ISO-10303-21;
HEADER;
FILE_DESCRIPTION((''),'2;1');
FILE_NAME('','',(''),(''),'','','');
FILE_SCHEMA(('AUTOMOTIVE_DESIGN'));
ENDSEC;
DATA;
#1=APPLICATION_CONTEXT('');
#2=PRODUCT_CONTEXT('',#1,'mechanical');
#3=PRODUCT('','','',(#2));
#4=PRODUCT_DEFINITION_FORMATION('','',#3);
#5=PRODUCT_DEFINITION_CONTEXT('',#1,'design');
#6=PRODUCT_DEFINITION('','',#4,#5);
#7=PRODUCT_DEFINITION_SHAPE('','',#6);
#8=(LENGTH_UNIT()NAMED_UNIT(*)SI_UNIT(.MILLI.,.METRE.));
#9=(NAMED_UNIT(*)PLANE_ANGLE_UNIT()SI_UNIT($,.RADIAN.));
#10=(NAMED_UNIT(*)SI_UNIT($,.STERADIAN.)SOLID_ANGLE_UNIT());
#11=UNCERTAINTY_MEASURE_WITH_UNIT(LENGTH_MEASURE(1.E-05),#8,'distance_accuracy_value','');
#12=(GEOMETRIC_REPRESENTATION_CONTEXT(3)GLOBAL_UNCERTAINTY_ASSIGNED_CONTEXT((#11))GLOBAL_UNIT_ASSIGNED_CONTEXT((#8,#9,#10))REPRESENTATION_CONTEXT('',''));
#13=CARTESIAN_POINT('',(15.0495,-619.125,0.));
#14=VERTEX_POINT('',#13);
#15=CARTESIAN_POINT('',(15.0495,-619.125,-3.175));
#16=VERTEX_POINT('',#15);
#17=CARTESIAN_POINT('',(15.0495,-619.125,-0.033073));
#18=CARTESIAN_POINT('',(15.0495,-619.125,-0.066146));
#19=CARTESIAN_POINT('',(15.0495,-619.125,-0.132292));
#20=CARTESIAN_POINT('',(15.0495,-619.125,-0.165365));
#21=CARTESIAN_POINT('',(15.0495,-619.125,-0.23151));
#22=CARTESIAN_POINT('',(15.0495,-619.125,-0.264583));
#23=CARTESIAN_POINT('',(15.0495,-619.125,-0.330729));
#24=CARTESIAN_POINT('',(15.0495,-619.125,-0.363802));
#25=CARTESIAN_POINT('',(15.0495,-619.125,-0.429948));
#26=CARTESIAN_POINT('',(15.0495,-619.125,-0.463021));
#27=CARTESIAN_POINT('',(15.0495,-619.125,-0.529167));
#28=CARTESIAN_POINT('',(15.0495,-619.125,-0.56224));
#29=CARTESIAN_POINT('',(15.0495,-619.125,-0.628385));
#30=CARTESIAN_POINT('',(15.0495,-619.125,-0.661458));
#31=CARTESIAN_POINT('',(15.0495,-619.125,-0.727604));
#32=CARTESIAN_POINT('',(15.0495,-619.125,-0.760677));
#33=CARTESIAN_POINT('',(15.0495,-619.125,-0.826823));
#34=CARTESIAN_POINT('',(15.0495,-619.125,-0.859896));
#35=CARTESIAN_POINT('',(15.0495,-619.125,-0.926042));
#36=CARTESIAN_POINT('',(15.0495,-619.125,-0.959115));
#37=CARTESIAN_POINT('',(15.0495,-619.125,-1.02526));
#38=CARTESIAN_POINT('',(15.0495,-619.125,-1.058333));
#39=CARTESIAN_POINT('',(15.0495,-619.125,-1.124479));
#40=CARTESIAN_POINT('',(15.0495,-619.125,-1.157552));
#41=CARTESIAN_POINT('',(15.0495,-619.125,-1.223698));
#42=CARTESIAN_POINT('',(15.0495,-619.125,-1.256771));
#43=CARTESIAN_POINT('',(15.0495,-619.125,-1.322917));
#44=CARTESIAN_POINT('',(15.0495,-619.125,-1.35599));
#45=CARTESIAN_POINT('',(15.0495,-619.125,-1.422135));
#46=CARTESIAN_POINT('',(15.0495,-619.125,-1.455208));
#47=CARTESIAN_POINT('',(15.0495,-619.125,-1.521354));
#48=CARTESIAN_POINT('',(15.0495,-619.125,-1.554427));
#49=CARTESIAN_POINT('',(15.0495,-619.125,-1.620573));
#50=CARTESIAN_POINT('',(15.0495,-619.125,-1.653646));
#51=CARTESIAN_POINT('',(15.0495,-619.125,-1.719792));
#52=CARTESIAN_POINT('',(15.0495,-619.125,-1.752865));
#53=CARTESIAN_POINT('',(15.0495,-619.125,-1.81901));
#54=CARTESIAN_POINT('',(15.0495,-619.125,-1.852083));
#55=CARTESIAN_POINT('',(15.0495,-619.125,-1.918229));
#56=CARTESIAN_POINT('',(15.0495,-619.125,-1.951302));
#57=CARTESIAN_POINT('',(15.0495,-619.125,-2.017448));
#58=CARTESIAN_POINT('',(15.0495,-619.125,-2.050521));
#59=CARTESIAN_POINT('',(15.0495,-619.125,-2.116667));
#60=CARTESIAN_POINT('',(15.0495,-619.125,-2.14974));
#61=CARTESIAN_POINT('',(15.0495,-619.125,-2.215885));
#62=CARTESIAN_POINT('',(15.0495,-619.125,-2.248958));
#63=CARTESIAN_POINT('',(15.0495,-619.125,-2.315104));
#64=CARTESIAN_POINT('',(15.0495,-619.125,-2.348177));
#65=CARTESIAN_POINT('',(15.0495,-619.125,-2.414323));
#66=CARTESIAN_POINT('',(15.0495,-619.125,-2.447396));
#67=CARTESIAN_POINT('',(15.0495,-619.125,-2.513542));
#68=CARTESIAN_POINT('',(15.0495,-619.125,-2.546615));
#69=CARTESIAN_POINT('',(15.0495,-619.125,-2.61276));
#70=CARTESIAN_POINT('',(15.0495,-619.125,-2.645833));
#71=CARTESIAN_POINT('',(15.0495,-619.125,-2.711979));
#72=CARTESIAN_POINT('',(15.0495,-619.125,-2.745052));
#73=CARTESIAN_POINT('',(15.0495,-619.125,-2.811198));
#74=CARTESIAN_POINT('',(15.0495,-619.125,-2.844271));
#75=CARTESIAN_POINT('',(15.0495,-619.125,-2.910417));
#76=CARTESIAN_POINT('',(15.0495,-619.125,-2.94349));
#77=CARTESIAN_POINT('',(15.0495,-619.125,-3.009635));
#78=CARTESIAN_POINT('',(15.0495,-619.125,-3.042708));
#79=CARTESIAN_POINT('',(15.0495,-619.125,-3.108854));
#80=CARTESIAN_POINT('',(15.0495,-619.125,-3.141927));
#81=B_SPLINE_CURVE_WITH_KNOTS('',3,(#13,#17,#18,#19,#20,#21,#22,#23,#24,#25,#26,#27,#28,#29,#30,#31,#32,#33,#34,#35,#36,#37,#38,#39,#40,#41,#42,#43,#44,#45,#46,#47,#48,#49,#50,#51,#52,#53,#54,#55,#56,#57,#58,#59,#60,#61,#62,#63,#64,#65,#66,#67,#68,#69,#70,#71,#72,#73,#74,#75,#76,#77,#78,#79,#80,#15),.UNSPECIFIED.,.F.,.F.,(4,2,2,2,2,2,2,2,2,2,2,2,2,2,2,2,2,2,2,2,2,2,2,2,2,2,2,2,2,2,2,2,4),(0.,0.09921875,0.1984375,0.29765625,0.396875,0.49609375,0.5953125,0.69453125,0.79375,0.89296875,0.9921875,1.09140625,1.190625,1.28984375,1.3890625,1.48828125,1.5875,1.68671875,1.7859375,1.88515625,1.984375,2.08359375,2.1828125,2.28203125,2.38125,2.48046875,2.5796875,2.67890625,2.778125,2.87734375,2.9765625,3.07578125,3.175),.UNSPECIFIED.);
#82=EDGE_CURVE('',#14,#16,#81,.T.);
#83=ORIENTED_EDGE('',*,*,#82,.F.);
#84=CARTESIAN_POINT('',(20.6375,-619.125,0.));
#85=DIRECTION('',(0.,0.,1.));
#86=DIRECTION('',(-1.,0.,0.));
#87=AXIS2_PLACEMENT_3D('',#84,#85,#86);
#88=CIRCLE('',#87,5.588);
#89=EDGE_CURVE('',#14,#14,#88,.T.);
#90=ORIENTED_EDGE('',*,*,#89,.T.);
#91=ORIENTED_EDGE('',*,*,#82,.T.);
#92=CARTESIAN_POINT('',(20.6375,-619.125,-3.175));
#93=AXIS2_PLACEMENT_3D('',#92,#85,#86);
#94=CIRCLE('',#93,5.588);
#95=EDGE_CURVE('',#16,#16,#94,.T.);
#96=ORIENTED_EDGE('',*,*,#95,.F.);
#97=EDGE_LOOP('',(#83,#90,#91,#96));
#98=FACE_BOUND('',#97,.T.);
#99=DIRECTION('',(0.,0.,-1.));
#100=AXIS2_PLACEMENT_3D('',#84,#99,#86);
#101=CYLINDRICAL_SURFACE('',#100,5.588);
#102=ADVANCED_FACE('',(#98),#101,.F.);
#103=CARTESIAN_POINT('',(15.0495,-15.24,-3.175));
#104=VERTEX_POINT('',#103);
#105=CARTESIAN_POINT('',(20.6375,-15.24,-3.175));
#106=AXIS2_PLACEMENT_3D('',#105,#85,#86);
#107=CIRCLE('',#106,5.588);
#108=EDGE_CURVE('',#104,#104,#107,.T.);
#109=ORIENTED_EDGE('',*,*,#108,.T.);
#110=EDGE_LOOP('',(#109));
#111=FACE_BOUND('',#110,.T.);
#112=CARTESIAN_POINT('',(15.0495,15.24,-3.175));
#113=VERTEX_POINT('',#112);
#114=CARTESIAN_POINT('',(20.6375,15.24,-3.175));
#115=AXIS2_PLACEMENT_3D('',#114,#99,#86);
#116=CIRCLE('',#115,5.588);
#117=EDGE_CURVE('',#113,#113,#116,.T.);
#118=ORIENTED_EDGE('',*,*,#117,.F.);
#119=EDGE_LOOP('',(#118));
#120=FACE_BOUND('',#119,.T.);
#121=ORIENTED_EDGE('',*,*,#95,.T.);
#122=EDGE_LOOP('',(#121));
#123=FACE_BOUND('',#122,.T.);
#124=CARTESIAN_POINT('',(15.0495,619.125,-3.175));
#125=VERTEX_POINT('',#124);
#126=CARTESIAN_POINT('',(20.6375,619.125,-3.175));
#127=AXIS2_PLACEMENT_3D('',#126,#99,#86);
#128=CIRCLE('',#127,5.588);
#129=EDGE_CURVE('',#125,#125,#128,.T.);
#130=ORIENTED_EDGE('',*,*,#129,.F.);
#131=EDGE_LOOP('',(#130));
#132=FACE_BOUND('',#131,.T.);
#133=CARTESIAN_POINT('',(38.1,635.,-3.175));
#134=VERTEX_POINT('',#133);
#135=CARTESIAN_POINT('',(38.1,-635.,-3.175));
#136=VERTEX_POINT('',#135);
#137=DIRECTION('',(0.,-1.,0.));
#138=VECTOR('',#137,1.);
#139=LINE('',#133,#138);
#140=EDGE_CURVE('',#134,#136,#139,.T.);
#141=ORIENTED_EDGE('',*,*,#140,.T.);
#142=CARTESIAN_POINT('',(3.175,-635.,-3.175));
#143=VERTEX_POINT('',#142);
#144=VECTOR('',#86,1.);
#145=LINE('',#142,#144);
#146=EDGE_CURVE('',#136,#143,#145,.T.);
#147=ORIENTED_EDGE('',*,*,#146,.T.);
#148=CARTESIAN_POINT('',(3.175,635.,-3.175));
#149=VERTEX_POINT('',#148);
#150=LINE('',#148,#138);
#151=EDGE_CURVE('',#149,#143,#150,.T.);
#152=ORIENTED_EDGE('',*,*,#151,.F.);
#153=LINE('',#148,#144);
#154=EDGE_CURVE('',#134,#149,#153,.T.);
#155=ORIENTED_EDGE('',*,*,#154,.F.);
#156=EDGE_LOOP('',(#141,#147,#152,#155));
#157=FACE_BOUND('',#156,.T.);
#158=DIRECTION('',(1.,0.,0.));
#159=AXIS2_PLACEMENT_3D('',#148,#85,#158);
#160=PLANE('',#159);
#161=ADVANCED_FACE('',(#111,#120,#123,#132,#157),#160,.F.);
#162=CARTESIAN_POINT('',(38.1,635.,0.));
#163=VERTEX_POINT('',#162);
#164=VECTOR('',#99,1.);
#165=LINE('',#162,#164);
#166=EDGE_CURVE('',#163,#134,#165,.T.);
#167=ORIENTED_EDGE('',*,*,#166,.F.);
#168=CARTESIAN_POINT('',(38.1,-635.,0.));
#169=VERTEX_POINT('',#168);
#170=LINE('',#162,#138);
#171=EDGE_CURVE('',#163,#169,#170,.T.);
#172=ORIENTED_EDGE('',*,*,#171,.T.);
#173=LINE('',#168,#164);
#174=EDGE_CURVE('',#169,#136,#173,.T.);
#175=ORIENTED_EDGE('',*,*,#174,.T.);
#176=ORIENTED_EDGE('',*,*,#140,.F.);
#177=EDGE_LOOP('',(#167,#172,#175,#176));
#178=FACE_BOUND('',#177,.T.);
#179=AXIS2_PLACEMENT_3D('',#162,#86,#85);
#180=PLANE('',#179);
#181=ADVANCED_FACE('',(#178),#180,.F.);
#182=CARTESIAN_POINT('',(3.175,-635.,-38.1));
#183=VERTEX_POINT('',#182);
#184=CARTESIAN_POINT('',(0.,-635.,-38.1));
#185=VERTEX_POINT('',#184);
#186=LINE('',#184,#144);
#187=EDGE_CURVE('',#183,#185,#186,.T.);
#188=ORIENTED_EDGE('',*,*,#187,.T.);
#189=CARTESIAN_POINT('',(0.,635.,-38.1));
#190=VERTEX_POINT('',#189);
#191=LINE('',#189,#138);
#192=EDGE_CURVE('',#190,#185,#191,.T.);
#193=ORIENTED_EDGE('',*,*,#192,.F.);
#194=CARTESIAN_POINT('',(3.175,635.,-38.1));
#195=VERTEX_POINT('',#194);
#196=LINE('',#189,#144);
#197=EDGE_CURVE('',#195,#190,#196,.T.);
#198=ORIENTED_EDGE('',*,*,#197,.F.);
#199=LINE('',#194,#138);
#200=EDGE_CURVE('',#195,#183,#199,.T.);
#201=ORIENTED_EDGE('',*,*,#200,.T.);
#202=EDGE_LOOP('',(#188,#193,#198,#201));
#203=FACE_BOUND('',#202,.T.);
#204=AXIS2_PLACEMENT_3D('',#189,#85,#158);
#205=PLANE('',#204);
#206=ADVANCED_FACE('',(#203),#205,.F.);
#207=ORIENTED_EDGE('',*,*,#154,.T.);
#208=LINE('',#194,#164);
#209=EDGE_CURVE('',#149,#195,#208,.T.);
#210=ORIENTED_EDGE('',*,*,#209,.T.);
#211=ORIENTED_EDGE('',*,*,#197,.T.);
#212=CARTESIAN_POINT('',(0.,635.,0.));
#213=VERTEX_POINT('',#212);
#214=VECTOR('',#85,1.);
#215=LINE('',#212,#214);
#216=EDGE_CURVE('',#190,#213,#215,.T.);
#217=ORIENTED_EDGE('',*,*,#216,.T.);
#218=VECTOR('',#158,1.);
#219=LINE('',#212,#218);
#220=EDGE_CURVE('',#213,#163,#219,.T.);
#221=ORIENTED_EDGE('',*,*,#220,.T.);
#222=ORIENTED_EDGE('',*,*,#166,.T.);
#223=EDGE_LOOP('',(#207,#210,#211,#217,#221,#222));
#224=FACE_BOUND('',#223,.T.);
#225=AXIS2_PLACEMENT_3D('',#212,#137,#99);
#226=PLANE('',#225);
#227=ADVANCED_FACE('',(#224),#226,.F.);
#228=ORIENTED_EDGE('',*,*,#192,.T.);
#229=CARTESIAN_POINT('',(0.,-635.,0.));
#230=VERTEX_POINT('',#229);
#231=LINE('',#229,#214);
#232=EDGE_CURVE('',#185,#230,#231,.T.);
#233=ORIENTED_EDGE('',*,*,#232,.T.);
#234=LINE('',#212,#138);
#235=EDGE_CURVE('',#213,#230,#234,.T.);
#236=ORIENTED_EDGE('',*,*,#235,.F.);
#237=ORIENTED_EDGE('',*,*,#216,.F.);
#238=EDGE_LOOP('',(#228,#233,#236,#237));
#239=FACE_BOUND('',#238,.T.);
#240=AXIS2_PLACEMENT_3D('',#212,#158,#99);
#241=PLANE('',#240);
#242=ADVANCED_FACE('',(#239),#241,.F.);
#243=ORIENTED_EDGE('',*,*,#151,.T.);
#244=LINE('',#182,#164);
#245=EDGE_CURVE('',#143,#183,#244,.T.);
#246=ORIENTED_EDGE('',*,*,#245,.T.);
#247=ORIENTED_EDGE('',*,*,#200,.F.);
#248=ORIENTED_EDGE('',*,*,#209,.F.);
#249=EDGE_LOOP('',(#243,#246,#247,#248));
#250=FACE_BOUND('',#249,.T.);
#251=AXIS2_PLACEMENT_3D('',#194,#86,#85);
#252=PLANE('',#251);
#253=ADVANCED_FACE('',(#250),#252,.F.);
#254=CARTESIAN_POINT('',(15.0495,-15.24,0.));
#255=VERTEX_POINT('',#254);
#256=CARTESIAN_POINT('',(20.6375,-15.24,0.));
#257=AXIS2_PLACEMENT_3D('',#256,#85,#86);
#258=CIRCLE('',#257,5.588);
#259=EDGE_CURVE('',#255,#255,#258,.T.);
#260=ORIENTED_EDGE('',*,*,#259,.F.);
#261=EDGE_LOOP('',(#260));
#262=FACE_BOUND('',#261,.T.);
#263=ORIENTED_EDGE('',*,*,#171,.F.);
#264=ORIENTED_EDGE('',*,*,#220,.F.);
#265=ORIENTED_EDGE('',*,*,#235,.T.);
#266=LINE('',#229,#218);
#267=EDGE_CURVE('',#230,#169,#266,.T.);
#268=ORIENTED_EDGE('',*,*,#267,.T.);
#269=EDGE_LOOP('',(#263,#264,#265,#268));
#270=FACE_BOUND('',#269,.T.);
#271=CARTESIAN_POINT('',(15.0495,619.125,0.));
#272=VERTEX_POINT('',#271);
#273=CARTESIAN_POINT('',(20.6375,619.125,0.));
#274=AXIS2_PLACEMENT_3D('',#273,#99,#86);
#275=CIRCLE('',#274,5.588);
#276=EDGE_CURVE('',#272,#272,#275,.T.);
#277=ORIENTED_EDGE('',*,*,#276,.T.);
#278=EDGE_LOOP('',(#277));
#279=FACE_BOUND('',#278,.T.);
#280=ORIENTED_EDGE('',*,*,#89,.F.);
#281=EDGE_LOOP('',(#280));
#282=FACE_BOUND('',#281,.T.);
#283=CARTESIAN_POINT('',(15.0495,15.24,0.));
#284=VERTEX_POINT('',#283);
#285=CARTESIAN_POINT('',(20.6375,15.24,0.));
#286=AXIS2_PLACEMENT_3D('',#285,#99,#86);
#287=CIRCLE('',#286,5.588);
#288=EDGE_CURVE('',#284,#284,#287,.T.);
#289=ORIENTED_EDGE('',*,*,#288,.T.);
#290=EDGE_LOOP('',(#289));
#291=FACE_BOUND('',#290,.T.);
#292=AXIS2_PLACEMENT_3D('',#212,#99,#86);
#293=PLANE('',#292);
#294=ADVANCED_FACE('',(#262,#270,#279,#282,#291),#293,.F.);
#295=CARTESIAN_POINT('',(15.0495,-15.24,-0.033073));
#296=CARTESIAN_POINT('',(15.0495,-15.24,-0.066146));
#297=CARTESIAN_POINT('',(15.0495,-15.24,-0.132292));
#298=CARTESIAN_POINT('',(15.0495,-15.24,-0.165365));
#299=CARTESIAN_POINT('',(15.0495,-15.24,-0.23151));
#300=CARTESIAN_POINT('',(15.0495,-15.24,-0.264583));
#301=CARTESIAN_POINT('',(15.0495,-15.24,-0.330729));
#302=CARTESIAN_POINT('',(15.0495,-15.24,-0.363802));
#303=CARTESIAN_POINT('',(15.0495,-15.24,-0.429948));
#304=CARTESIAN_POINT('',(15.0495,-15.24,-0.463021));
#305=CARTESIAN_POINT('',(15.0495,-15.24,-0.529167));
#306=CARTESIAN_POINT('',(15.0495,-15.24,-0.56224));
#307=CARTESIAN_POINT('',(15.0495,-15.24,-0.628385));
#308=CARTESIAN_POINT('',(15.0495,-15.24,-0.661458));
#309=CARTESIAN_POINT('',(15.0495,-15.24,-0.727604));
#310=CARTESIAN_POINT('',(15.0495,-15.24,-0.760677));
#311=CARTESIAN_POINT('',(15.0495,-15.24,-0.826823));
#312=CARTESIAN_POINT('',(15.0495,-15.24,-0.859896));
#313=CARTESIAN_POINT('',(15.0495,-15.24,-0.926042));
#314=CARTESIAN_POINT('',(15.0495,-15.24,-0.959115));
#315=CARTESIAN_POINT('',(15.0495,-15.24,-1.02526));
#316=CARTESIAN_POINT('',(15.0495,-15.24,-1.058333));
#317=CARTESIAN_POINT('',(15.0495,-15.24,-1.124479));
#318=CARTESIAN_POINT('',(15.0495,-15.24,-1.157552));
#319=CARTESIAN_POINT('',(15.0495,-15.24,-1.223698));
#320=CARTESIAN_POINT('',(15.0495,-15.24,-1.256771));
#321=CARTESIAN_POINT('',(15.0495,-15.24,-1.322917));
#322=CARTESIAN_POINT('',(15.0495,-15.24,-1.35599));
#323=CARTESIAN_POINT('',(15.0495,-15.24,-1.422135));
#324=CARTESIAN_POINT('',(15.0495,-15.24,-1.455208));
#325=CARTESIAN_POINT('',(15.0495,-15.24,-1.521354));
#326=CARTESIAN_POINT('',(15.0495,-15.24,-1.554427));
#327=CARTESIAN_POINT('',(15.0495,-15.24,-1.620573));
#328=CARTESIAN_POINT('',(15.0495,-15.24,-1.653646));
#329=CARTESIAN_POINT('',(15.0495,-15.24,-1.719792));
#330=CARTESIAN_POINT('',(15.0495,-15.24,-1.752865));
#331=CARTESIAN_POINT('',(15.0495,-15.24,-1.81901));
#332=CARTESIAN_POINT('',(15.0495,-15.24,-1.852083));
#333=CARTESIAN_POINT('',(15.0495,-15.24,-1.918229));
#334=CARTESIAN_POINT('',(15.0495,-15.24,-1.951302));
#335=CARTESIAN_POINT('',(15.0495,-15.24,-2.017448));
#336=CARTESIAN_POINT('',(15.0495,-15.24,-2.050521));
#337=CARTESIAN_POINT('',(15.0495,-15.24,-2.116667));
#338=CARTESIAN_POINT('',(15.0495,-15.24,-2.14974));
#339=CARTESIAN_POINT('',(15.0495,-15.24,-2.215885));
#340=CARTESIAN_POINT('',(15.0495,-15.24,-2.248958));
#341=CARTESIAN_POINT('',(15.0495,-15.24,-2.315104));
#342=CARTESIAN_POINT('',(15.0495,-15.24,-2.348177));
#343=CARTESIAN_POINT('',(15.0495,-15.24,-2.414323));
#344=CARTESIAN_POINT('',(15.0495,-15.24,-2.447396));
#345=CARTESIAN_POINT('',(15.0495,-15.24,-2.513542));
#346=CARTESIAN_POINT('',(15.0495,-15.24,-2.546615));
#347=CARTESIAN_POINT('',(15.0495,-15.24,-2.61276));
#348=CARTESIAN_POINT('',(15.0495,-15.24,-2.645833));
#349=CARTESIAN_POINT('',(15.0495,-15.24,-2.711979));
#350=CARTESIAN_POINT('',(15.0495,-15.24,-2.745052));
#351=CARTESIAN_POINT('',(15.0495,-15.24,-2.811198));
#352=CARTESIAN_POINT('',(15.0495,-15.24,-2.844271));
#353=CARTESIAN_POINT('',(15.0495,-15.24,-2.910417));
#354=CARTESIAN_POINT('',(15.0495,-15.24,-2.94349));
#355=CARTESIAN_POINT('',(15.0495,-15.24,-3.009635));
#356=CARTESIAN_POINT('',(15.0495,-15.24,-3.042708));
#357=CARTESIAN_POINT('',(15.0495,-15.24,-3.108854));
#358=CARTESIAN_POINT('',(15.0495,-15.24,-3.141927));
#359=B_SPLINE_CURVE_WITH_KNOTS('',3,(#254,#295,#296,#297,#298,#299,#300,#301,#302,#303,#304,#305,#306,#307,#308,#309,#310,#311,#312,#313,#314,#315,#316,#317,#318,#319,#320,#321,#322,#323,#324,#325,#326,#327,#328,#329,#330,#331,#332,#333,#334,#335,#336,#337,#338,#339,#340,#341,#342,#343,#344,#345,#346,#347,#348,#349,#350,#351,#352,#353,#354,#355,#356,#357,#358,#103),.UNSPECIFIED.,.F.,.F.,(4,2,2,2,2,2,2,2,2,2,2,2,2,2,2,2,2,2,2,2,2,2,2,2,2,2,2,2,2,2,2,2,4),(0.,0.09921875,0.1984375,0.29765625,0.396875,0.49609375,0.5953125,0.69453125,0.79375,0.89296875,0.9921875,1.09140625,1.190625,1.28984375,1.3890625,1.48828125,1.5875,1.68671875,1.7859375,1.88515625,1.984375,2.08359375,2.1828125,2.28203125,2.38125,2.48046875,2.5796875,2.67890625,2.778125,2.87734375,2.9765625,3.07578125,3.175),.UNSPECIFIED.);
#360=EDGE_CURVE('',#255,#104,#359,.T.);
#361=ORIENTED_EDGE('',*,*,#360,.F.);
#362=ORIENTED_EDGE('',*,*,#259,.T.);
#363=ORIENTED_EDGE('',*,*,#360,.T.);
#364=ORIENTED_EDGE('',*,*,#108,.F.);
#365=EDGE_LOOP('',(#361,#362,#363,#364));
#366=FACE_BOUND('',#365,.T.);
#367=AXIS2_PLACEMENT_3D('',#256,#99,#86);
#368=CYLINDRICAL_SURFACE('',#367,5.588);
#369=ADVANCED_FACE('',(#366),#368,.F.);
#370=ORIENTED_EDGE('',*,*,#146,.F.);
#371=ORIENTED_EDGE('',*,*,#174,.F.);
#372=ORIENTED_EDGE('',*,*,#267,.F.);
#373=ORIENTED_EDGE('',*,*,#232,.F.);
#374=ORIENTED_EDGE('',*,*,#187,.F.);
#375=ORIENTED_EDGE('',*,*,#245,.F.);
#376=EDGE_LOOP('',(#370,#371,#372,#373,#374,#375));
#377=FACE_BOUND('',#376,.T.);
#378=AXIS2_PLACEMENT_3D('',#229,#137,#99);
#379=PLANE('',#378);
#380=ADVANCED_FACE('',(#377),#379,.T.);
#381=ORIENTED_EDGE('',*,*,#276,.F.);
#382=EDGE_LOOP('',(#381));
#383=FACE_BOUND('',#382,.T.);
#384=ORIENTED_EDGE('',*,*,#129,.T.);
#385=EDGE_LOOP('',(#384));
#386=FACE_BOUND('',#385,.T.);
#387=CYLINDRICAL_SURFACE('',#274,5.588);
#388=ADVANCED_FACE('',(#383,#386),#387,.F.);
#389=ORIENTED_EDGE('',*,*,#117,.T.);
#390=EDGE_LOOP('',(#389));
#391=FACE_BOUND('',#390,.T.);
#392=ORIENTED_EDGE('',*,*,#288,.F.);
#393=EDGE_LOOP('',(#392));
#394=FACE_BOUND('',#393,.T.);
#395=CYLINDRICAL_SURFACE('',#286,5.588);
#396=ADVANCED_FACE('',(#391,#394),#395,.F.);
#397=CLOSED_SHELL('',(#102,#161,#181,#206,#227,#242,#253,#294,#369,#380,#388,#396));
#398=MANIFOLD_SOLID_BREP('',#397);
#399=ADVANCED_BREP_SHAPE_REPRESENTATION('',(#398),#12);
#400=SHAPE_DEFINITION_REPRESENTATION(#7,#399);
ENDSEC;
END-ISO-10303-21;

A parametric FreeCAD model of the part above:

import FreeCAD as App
import Part
import Sketcher
from FreeCAD import Vector
Q = App.Units.Quantity


def add_polygon(sketch, points):
    """Adds a closed chain of lines whose ends are joined by coincident constraints."""
    first, n = sketch.GeometryCount, len(points)
    for a, b in zip(points, points[1:] + points[:1]):
        sketch.addGeometry(Part.LineSegment(App.Vector(*a, 0), App.Vector(*b, 0)), False)
    for i in range(n):
        sketch.addConstraint(Sketcher.Constraint("Coincident", first + i, 2, first + (i + 1) % n, 1))

doc = App.newDocument("Part")
body = doc.addObject("PartDesign::Body", "Body")

sketch1 = body.newObject("Sketcher::SketchObject", "Sketch")
sketch1.AttachmentSupport = (doc.getObject("XZ_Plane"), [""])
sketch1.MapMode = "FlatFace"
add_polygon(sketch1, [(3.2, -3.2), (3.2, -38.1), (0, -38.1), (0, 0), (38.1, 0), (38.1, -3.2)])
sketch1.addConstraint([
    Sketcher.Constraint("Vertical", 0),
    Sketcher.Constraint("Horizontal", 1),
    Sketcher.Constraint("Vertical", 2),
    Sketcher.Constraint("Horizontal", 3),
    Sketcher.Constraint("Vertical", 4),
    Sketcher.Constraint("Horizontal", 5),
    Sketcher.Constraint("Coincident", 2, 2, -1, 1),
    Sketcher.Constraint("Equal", 5, 0),
    Sketcher.Constraint("Equal", 3, 2),
    Sketcher.Constraint("DistanceX", 3, 1, 3, 2, Q("1.5 in")),
    Sketcher.Constraint("DistanceX", 1, 2, 1, 1, Q("0.125 in")),
])
pad1 = body.newObject("PartDesign::Pad", "Pad")
pad1.Profile = sketch1
pad1.Length = Q("50 in")
pad1.Midplane = True

sketch2 = body.newObject("Sketcher::SketchObject", "Sketch001")
sketch2.AttachmentSupport = (doc.getObject("XY_Plane"), [""])
sketch2.MapMode = "FlatFace"
sketch2.AttachmentOffset = App.Placement(Vector(0, 0, -0.125 * 25.4), App.Rotation())
sketch2.addGeometry([
    Part.Circle(Vector(21, 619, 0), Vector(0, 0, 1), 6),
    Part.Circle(Vector(21, 15, 0), Vector(0, 0, 1), 6),
], False)
sketch2.addConstraint([
    Sketcher.Constraint("Equal", 0, 1),
    Sketcher.Constraint("Vertical", 0, 3, 1, 3),
    Sketcher.Constraint("Diameter", 0, Q("0.44 in")),
    Sketcher.Constraint("DistanceY", -1, 1, 1, 3, Q("0.6 in")),
    Sketcher.Constraint("DistanceX", -1, 1, 0, 3, Q("0.8125 in")),
    Sketcher.Constraint("DistanceY", -1, 1, 0, 3, Q("24.375 in")),
])
pocket1 = body.newObject("PartDesign::Pocket", "Pocket")
pocket1.Profile = sketch2
pocket1.Type = "ThroughAll"
pocket1.Reversed = True
doc.recompute()

mirrored = body.newObject("PartDesign::Mirrored", "Mirrored")
mirrored.Originals = [pocket1]
mirrored.MirrorPlane = (doc.getObject("XZ_Plane"), [""])
body.Tip = mirrored

doc.recompute()
